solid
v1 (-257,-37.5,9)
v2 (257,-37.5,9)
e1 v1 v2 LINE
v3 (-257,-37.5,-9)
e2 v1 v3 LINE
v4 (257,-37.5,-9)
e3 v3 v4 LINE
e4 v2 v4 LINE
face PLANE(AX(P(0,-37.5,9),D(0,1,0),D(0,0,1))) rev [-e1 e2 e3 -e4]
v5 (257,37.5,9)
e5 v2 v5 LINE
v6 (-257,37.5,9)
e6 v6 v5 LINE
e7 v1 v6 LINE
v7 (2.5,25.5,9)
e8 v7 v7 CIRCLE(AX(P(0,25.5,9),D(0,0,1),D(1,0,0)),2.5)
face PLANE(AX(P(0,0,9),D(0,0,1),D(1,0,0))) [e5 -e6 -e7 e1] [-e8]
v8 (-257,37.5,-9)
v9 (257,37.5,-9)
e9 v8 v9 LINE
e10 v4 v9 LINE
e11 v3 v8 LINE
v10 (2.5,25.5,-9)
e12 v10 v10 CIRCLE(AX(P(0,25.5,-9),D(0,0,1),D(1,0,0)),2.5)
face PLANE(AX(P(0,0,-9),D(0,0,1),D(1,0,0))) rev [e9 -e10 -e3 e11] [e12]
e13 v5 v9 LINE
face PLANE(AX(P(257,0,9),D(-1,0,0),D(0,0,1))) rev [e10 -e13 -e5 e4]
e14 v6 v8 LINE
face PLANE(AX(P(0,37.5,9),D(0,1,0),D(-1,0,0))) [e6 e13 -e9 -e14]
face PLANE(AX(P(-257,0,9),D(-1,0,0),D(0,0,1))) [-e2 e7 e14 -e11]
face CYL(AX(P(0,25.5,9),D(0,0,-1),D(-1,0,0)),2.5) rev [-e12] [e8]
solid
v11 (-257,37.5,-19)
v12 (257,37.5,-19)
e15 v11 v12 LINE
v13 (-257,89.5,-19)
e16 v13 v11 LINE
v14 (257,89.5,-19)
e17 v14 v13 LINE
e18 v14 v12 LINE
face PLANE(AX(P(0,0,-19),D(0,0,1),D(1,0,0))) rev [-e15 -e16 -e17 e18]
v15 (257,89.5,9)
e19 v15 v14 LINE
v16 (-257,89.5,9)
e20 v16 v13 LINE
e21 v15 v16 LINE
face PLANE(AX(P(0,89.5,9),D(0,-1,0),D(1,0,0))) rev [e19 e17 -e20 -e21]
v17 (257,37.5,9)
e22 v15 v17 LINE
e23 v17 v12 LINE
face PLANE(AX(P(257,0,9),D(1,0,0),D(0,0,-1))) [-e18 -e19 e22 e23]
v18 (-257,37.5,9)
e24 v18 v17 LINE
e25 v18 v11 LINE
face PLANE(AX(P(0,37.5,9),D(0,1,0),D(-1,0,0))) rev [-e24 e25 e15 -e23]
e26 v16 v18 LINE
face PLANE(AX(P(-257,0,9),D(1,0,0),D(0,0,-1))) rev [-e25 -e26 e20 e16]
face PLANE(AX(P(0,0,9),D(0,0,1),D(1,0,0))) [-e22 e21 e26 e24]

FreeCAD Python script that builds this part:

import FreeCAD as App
import Part
import Sketcher
Q = App.Units.Quantity

doc = App.newDocument("Part")
params = doc.addObject("Spreadsheet::Sheet", "Params")
for row, (alias, value) in enumerate([
    ("sketch1_width", "514 mm"),
    ("sketch1_height", "52 mm"),
    ("pad1_length", "18 mm"),
    ("sketch2_width", "514 mm"),
    ("sketch2_height", "52 mm"),
    ("pad2_length", "10 mm"),
    ("sketch3_diameter", "5 mm"),
    ("sketch3_width", "514 mm"),
    ("sketch3_height", "75 mm"),
    ("pad3_length", "18 mm"),
], start=1):
    params.set(f"A{row}", alias)
    params.set(f"B{row}", "=" + value)
    params.setAlias(f"B{row}", alias)

body = doc.addObject("PartDesign::Body", "Body")

# Sketch on XY plane
sketch1 = body.newObject("Sketcher::SketchObject", "Sketch")
sketch1.AttachmentSupport = (doc.getObject("XY_Plane"), [""])
sketch1.MapMode = "FlatFace"
sketch1.addGeometry([
    Part.LineSegment(App.Vector(-257, 89.5, 0), App.Vector(-257, 37.5, 0)),
    Part.LineSegment(App.Vector(-257, 37.5, 0), App.Vector(257, 37.5, 0)),
    Part.LineSegment(App.Vector(257, 37.5, 0), App.Vector(257, 89.5, 0)),
    Part.LineSegment(App.Vector(257, 89.5, 0), App.Vector(-257, 89.5, 0)),
], False)
sketch1.addConstraint([
    Sketcher.Constraint("Coincident", 0, 2, 1, 1),
    Sketcher.Constraint("Coincident", 1, 2, 2, 1),
    Sketcher.Constraint("Coincident", 2, 2, 3, 1),
    Sketcher.Constraint("Coincident", 3, 2, 0, 1),
    Sketcher.Constraint("Vertical", 0),
    Sketcher.Constraint("Horizontal", 1),
    Sketcher.Constraint("Vertical", 2),
    Sketcher.Constraint("Horizontal", 3),
    Sketcher.Constraint("DistanceX", 1, 1, 1, 2, Q("514 mm")),
    Sketcher.Constraint("DistanceY", 0, 2, 0, 1, Q("52 mm")),
    Sketcher.Constraint("DistanceX", 0, 2, -1, 1, Q("257 mm")),
    Sketcher.Constraint("DistanceY", -1, 1, 0, 2, Q("37.5 mm")),
])
sketch1.setExpression("Constraints[8]", "Params.sketch1_width")
sketch1.setExpression("Constraints[9]", "Params.sketch1_height")
pad1 = body.newObject("PartDesign::Pad", "Pad")
pad1.Profile = sketch1
pad1.setExpression("Length", "Params.pad1_length")
pad1.Midplane = True

# Sketch on XY plane
sketch2 = body.newObject("Sketcher::SketchObject", "Sketch001")
sketch2.AttachmentSupport = (doc.getObject("XY_Plane"), [""])
sketch2.MapMode = "FlatFace"
sketch2.AttachmentOffset = App.Placement(App.Vector(0, 0, -19), App.Rotation())
sketch2.addGeometry([
    Part.LineSegment(App.Vector(-257, 89.5, 0), App.Vector(-257, 37.5, 0)),
    Part.LineSegment(App.Vector(-257, 37.5, 0), App.Vector(257, 37.5, 0)),
    Part.LineSegment(App.Vector(257, 37.5, 0), App.Vector(257, 89.5, 0)),
    Part.LineSegment(App.Vector(257, 89.5, 0), App.Vector(-257, 89.5, 0)),
], False)
sketch2.addConstraint([
    Sketcher.Constraint("Coincident", 0, 2, 1, 1),
    Sketcher.Constraint("Coincident", 1, 2, 2, 1),
    Sketcher.Constraint("Coincident", 2, 2, 3, 1),
    Sketcher.Constraint("Coincident", 3, 2, 0, 1),
    Sketcher.Constraint("Vertical", 0),
    Sketcher.Constraint("Horizontal", 1),
    Sketcher.Constraint("Vertical", 2),
    Sketcher.Constraint("Horizontal", 3),
    Sketcher.Constraint("DistanceX", 1, 1, 1, 2, Q("514 mm")),
    Sketcher.Constraint("DistanceY", 0, 2, 0, 1, Q("52 mm")),
    Sketcher.Constraint("DistanceX", 0, 2, -1, 1, Q("257 mm")),
    Sketcher.Constraint("DistanceY", -1, 1, 0, 2, Q("37.5 mm")),
])
sketch2.setExpression("Constraints[8]", "Params.sketch2_width")
sketch2.setExpression("Constraints[9]", "Params.sketch2_height")
pad2 = body.newObject("PartDesign::Pad", "Pad001")
pad2.Profile = sketch2
pad2.setExpression("Length", "Params.pad2_length")
body2 = doc.addObject("PartDesign::Body", "Body001")

# Sketch on XY plane
sketch3 = body2.newObject("Sketcher::SketchObject", "Sketch002")
sketch3.AttachmentSupport = (doc.getObject("XY_Plane001"), [""])
sketch3.MapMode = "FlatFace"
sketch3.addGeometry([
    Part.LineSegment(App.Vector(-257, 37.5, 0), App.Vector(-257, -37.5, 0)),  # 0
    Part.LineSegment(App.Vector(-257, -37.5, 0), App.Vector(257, -37.5, 0)),  # 1
    Part.LineSegment(App.Vector(257, -37.5, 0), App.Vector(257, 37.5, 0)),  # 2
    Part.LineSegment(App.Vector(257, 37.5, 0), App.Vector(-257, 37.5, 0)),  # 3
    Part.Circle(App.Vector(0, 25.5, 0), App.Vector(0, 0, 1), 2.5),  # 4
], False)
sketch3.addConstraint([
    Sketcher.Constraint("Coincident", 0, 2, 1, 1),
    Sketcher.Constraint("Coincident", 1, 2, 2, 1),
    Sketcher.Constraint("Coincident", 2, 2, 3, 1),
    Sketcher.Constraint("Coincident", 3, 2, 0, 1),
    Sketcher.Constraint("Vertical", 0),
    Sketcher.Constraint("Horizontal", 1),
    Sketcher.Constraint("Vertical", 2),
    Sketcher.Constraint("Horizontal", 3),
    Sketcher.Constraint("Symmetric", 0, 2, 2, 2, -1, 1),
    Sketcher.Constraint("PointOnObject", 4, 3, -2),
    Sketcher.Constraint("Diameter", 4, Q("5 mm")),
    Sketcher.Constraint("DistanceX", 1, 1, 1, 2, Q("514 mm")),
    Sketcher.Constraint("DistanceY", 0, 2, 0, 1, Q("75 mm")),
    Sketcher.Constraint("DistanceY", 0, 2, 4, 3, Q("63 mm")),
])
sketch3.setExpression("Constraints[10]", "Params.sketch3_diameter")
sketch3.setExpression("Constraints[11]", "Params.sketch3_width")
sketch3.setExpression("Constraints[12]", "Params.sketch3_height")
pad3 = body2.newObject("PartDesign::Pad", "Pad002")
pad3.Profile = sketch3
pad3.setExpression("Length", "Params.pad3_length")
pad3.Midplane = True

doc.recompute()
